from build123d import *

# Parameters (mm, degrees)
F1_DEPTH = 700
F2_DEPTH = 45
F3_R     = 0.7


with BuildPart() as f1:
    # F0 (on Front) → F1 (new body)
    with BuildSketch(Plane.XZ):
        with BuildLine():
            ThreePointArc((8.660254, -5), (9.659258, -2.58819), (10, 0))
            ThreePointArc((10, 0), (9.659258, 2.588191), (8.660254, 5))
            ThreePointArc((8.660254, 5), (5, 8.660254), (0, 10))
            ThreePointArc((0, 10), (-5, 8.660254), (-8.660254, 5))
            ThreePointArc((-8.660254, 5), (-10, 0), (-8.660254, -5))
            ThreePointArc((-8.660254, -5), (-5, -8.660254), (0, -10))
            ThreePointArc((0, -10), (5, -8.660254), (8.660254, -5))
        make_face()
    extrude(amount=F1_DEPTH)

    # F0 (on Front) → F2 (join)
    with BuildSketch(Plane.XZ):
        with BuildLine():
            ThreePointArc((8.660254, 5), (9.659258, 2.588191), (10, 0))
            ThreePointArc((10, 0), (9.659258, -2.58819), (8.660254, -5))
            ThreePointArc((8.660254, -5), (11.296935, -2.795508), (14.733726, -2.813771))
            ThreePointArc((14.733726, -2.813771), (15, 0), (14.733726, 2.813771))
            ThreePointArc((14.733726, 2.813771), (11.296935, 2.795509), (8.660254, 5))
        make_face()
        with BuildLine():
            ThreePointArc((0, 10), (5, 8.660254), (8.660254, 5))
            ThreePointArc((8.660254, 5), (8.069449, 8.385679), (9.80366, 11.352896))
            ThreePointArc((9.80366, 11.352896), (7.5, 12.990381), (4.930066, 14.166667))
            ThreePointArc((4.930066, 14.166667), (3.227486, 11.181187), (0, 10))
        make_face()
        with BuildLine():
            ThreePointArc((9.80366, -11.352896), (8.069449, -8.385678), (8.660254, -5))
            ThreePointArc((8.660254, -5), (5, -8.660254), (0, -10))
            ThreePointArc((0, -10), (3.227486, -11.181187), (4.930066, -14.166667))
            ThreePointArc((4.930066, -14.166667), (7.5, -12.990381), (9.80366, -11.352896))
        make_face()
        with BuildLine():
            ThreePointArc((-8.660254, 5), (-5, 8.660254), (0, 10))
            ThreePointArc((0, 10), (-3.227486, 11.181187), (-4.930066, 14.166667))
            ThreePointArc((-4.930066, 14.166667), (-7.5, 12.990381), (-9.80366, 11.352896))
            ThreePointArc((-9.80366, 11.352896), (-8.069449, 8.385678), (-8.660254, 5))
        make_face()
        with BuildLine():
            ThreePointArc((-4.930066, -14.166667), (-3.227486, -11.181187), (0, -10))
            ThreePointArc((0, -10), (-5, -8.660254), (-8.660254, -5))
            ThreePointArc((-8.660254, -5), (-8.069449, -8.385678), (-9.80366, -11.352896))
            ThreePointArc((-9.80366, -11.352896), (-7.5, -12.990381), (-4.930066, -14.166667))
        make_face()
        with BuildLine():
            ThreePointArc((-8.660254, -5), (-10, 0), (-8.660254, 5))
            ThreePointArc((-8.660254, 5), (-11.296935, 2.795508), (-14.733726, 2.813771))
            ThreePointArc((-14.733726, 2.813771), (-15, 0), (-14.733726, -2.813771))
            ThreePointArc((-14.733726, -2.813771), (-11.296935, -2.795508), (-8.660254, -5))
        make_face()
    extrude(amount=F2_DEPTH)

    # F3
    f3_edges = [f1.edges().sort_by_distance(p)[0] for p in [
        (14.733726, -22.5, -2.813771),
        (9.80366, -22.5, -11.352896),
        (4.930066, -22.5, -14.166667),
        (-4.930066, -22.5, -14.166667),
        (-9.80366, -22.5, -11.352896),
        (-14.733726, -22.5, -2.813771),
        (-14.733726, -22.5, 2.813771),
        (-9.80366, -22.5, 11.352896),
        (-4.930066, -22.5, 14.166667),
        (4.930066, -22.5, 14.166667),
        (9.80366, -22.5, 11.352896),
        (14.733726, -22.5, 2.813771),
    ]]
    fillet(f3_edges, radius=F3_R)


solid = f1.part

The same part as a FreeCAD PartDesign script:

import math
import FreeCAD as App
import Part
import Sketcher
Q = App.Units.Quantity


def edges_at(feature, points):
    """Names of the edges that pass closest to the given points."""
    edges = feature.Shape.Edges
    near = lambda p: min(range(len(edges)), key=lambda i: edges[i].distToShape(Part.Vertex(*p))[0])
    return sorted({f"Edge{near(p) + 1}" for p in points})

doc = App.newDocument("Part")
body = doc.addObject("PartDesign::Body", "Body")

sketch1 = doc.addObject("Sketcher::SketchObject", "Sketch")
body.addObject(sketch1)
sketch1.AttachmentSupport = (doc.XZ_Plane, [""])
sketch1.MapMode = "FlatFace"
sketch1.addGeometry([
    Part.ArcOfCircle(Part.Circle(App.Vector(-0.00001, 0.000003, 0), App.Vector(0, 0, 1), 10.00001), math.radians(-29.999985), math.radians(-0.000016)),
    Part.ArcOfCircle(Part.Circle(App.Vector(-0.000003, -0.000001, 0), App.Vector(0, 0, 1), 10.000003), math.radians(0.000005), math.radians(29.999996)),
    Part.ArcOfCircle(Part.Circle(App.Vector(0, 0, 0), App.Vector(0, 0, 1), 10), math.radians(30), math.radians(89.999999)),
    Part.ArcOfCircle(Part.Circle(App.Vector(0, 0, 0), App.Vector(0, 0, 1), 10), math.radians(90.000001), math.radians(150)),
    Part.ArcOfCircle(Part.Circle(App.Vector(0, 0, 0), App.Vector(0, 0, 1), 10), math.radians(149.999999), math.radians(210.000001)),
    Part.ArcOfCircle(Part.Circle(App.Vector(0, 0, 0), App.Vector(0, 0, 1), 10), math.radians(-150), math.radians(-90.000001)),
    Part.ArcOfCircle(Part.Circle(App.Vector(0, 0, 0), App.Vector(0, 0, 1), 10), math.radians(-89.999999), math.radians(-30)),
], False)
sketch1.addConstraint([
    Sketcher.Constraint("Tangent", 0, 2, 1, 1),
    Sketcher.Constraint("Tangent", 1, 2, 2, 1),
    Sketcher.Constraint("Tangent", 2, 2, 3, 1),
    Sketcher.Constraint("Tangent", 3, 2, 4, 1),
    Sketcher.Constraint("Tangent", 4, 2, 5, 1),
    Sketcher.Constraint("Tangent", 5, 2, 6, 1),
    Sketcher.Constraint("Tangent", 6, 2, 0, 1),
    Sketcher.Constraint("Coincident", 1, 3, -1, 1),
    Sketcher.Constraint("Coincident", 3, 3, -1, 1),
    Sketcher.Constraint("Coincident", 5, 3, -1, 1),
    Sketcher.Constraint("PointOnObject", 0, 2, -1),
    Sketcher.Constraint("PointOnObject", 2, 2, -2),
    Sketcher.Constraint("PointOnObject", 5, 2, -2),
    Sketcher.Constraint("Horizontal", 1, 2, 3, 2),
    Sketcher.Constraint("Horizontal", 4, 2, 6, 2),
    Sketcher.Constraint("Vertical", 3, 2, 4, 2),
    Sketcher.Constraint("Radius", 2, Q("10 mm")),
    Sketcher.Constraint("DistanceY", -1, 1, 1, 2, Q("5 mm")),
])
pad1 = doc.addObject("PartDesign::Pad", "Pad")
body.addObject(pad1)
pad1.Profile = sketch1
pad1.Length = 700

sketch2 = doc.addObject("Sketcher::SketchObject", "Sketch001")
body.addObject(sketch2)
sketch2.AttachmentSupport = (doc.XZ_Plane, [""])
sketch2.MapMode = "FlatFace"
sketch2.addGeometry([
    Part.ArcOfCircle(Part.Circle(App.Vector(-0.000003, -0.000001, 0), App.Vector(0, 0, 1), 10.000003), math.radians(0.000005), math.radians(29.999996)),
    Part.ArcOfCircle(Part.Circle(App.Vector(-0.00001, 0.000003, 0), App.Vector(0, 0, 1), 10.00001), math.radians(-29.999985), math.radians(-0.000016)),
    Part.ArcOfCircle(Part.Circle(App.Vector(12.99038, -7.499997, 0), App.Vector(0, 0, 1), 4.999997), math.radians(69.594044), math.radians(150.000019)),
    Part.ArcOfCircle(Part.Circle(App.Vector(0.00002, 0, 0), App.Vector(0, 0, 1), 14.99998), math.radians(-10.81188), math.radians(10.81188)),
    Part.ArcOfCircle(Part.Circle(App.Vector(12.990381, 7.500001, 0), App.Vector(0, 0, 1), 5), math.radians(-149.99999), math.radians(-69.594073)),
    Part.ArcOfCircle(Part.Circle(App.Vector(0, 0, 0), App.Vector(0, 0, 1), 10), math.radians(30), math.radians(89.999999)),
    Part.ArcOfCircle(Part.Circle(App.Vector(12.990381, 7.5, 0), App.Vector(0, 0, 1), 5), math.radians(129.594068), math.radians(209.999999)),
    Part.ArcOfCircle(Part.Circle(App.Vector(-0.000003, -0.000003, 0), App.Vector(0, 0, 1), 15.000004), math.radians(49.188137), math.radians(70.81186)),
    Part.ArcOfCircle(Part.Circle(App.Vector(0, 14.999999, 0), App.Vector(0, 0, 1), 4.999999), math.radians(-90), math.radians(-9.594058)),
    Part.ArcOfCircle(Part.Circle(App.Vector(12.990382, -7.5, 0), App.Vector(0, 0, 1), 5), math.radians(150.000007), math.radians(230.405927)),
    Part.ArcOfCircle(Part.Circle(App.Vector(0, 0, 0), App.Vector(0, 0, 1), 10), math.radians(-89.999999), math.radians(-30)),
    Part.ArcOfCircle(Part.Circle(App.Vector(0, -14.999999, 0), App.Vector(0, 0, 1), 4.999999), math.radians(9.594058), math.radians(90)),
    Part.ArcOfCircle(Part.Circle(App.Vector(-0.000003, 0.000003, 0), App.Vector(0, 0, 1), 15.000004), math.radians(-70.81186), math.radians(-49.188137)),
    Part.ArcOfCircle(Part.Circle(App.Vector(0, 0, 0), App.Vector(0, 0, 1), 10), math.radians(90.000001), math.radians(150)),
    Part.ArcOfCircle(Part.Circle(App.Vector(0, 14.999999, 0), App.Vector(0, 0, 1), 4.999999), math.radians(-170.405942), math.radians(-90)),
    Part.ArcOfCircle(Part.Circle(App.Vector(0.000003, -0.000003, 0), App.Vector(0, 0, 1), 15.000004), math.radians(109.18814), math.radians(130.811863)),
    Part.ArcOfCircle(Part.Circle(App.Vector(-12.990382, 7.5, 0), App.Vector(0, 0, 1), 5), math.radians(-29.999993), math.radians(50.405927)),
    Part.ArcOfCircle(Part.Circle(App.Vector(0, -14.999999, 0), App.Vector(0, 0, 1), 4.999999), math.radians(90), math.radians(170.405942)),
    Part.ArcOfCircle(Part.Circle(App.Vector(0, 0, 0), App.Vector(0, 0, 1), 10), math.radians(-150), math.radians(-90.000001)),
    Part.ArcOfCircle(Part.Circle(App.Vector(-12.990382, -7.5, 0), App.Vector(0, 0, 1), 5), math.radians(-50.405927), math.radians(29.999993)),
    Part.ArcOfCircle(Part.Circle(App.Vector(0.000003, 0.000003, 0), App.Vector(0, 0, 1), 15.000004), math.radians(-130.811863), math.radians(-109.18814)),
    Part.ArcOfCircle(Part.Circle(App.Vector(0, 0, 0), App.Vector(0, 0, 1), 10), math.radians(149.999999), math.radians(210.000001)),
    Part.ArcOfCircle(Part.Circle(App.Vector(-12.99038, 7.499997, 0), App.Vector(0, 0, 1), 4.999997), math.radians(-110.405956), math.radians(-29.999981)),
    Part.ArcOfCircle(Part.Circle(App.Vector(-0.00002, 0, 0), App.Vector(0, 0, 1), 14.99998), math.radians(169.18812), math.radians(190.81188)),
    Part.ArcOfCircle(Part.Circle(App.Vector(-12.99038, -7.499997, 0), App.Vector(0, 0, 1), 4.999997), math.radians(29.999981), math.radians(110.405956)),
], False)
sketch2.addConstraint([
    Sketcher.Constraint("Tangent", 0, 1, 1, 2),
    Sketcher.Constraint("Tangent", 1, 1, 2, 2),
    Sketcher.Constraint("Coincident", 2, 1, 3, 1),
    Sketcher.Constraint("Coincident", 3, 2, 4, 2),
    Sketcher.Constraint("Tangent", 4, 1, 0, 2),
    Sketcher.Constraint("Tangent", 5, 1, 6, 2),
    Sketcher.Constraint("Coincident", 6, 1, 7, 1),
    Sketcher.Constraint("Coincident", 7, 2, 8, 2),
    Sketcher.Constraint("Tangent", 8, 1, 5, 2),
    Sketcher.Constraint("Tangent", 9, 1, 10, 2),
    Sketcher.Constraint("Tangent", 10, 1, 11, 2),
    Sketcher.Constraint("Coincident", 11, 1, 12, 1),
    Sketcher.Constraint("Coincident", 12, 2, 9, 2),
    Sketcher.Constraint("Tangent", 13, 1, 14, 2),
    Sketcher.Constraint("Coincident", 14, 1, 15, 1),
    Sketcher.Constraint("Coincident", 15, 2, 16, 2),
    Sketcher.Constraint("Tangent", 16, 1, 13, 2),
    Sketcher.Constraint("Tangent", 17, 1, 18, 2),
    Sketcher.Constraint("Tangent", 18, 1, 19, 2),
    Sketcher.Constraint("Coincident", 19, 1, 20, 1),
    Sketcher.Constraint("Coincident", 20, 2, 17, 2),
    Sketcher.Constraint("Tangent", 21, 1, 22, 2),
    Sketcher.Constraint("Coincident", 22, 1, 23, 1),
    Sketcher.Constraint("Coincident", 23, 2, 24, 2),
    Sketcher.Constraint("Tangent", 24, 1, 21, 2),
    Sketcher.Constraint("Coincident", 0, 3, -1, 1),
    Sketcher.Constraint("Coincident", 5, 3, -1, 1),
    Sketcher.Constraint("Coincident", 7, 3, -1, 1),
    Sketcher.Constraint("Coincident", 10, 3, -1, 1),
    Sketcher.Constraint("Coincident", 12, 3, -1, 1),
    Sketcher.Constraint("Coincident", 13, 3, -1, 1),
    Sketcher.Constraint("Coincident", 15, 3, -1, 1),
    Sketcher.Constraint("Coincident", 18, 3, -1, 1),
    Sketcher.Constraint("Coincident", 20, 3, -1, 1),
    Sketcher.Constraint("Coincident", 21, 3, -1, 1),
    Sketcher.Constraint("Coincident", 6, 3, 4, 3),
    Sketcher.Constraint("Coincident", 9, 3, 2, 3),
    Sketcher.Constraint("Coincident", 14, 3, 8, 3),
    Sketcher.Constraint("Coincident", 17, 3, 11, 3),
    Sketcher.Constraint("Coincident", 22, 3, 16, 3),
    Sketcher.Constraint("Coincident", 24, 3, 19, 3),
    Sketcher.Constraint("Coincident", 9, 1, 1, 1),
    Sketcher.Constraint("Equal", 4, 6),
    Sketcher.Constraint("Equal", 6, 8),
    Sketcher.Constraint("Equal", 8, 9),
    Sketcher.Constraint("Equal", 9, 11),
    Sketcher.Constraint("Equal", 7, 12),
    Sketcher.Constraint("Equal", 10, 13),
    Sketcher.Constraint("Equal", 12, 15),
    Sketcher.Constraint("Equal", 14, 16),
    Sketcher.Constraint("Equal", 16, 17),
    Sketcher.Constraint("Equal", 17, 19),
    Sketcher.Constraint("Equal", 15, 20),
    Sketcher.Constraint("Equal", 18, 21),
    Sketcher.Constraint("Equal", 3, 23),
    Sketcher.Constraint("Symmetric", 3, 3, 23, 3, -1, 1),
    Sketcher.Constraint("Symmetric", 3, 2, 22, 1, -2),
    Sketcher.Constraint("PointOnObject", 8, 3, -2),
    Sketcher.Constraint("PointOnObject", 11, 3, -2),
    Sketcher.Constraint("PointOnObject", 0, 1, -1),
    Sketcher.Constraint("Horizontal", 9, 3, 19, 3),
    Sketcher.Constraint("Vertical", 2, 3, 4, 3),
    Sketcher.Constraint("Radius", 4, Q("5 mm")),
    Sketcher.Constraint("Radius", 5, Q("10 mm")),
    Sketcher.Constraint("DistanceY", 1, 1, -1, 1, Q("5 mm")),
    Sketcher.Constraint("Radius", 3, Q("14.99998 mm")),
    Sketcher.Constraint("Radius", 7, Q("15.000004 mm")),
    Sketcher.Constraint("DistanceY", 2, 1, -1, 1, Q("2.813771 mm")),
])
pad2 = doc.addObject("PartDesign::Pad", "Pad001")
body.addObject(pad2)
pad2.Profile = sketch2
pad2.Length = 45
doc.recompute()

fillet = doc.addObject("PartDesign::Fillet", "Fillet")
body.addObject(fillet)
fillet.Base = (pad2, edges_at(pad2, [
    (14.734, -22.5, -2.814),
    (9.804, -22.5, -11.353),
    (4.93, -22.5, -14.167),
    (-4.93, -22.5, -14.167),
    (-9.804, -22.5, -11.353),
    (-14.734, -22.5, -2.814),
    (-14.734, -22.5, 2.814),
    (-9.804, -22.5, 11.353),
    (-4.93, -22.5, 14.167),
    (4.93, -22.5, 14.167),
    (9.804, -22.5, 11.353),
    (14.734, -22.5, 2.814),
]))
fillet.Radius = 0.7

doc.recompute()
